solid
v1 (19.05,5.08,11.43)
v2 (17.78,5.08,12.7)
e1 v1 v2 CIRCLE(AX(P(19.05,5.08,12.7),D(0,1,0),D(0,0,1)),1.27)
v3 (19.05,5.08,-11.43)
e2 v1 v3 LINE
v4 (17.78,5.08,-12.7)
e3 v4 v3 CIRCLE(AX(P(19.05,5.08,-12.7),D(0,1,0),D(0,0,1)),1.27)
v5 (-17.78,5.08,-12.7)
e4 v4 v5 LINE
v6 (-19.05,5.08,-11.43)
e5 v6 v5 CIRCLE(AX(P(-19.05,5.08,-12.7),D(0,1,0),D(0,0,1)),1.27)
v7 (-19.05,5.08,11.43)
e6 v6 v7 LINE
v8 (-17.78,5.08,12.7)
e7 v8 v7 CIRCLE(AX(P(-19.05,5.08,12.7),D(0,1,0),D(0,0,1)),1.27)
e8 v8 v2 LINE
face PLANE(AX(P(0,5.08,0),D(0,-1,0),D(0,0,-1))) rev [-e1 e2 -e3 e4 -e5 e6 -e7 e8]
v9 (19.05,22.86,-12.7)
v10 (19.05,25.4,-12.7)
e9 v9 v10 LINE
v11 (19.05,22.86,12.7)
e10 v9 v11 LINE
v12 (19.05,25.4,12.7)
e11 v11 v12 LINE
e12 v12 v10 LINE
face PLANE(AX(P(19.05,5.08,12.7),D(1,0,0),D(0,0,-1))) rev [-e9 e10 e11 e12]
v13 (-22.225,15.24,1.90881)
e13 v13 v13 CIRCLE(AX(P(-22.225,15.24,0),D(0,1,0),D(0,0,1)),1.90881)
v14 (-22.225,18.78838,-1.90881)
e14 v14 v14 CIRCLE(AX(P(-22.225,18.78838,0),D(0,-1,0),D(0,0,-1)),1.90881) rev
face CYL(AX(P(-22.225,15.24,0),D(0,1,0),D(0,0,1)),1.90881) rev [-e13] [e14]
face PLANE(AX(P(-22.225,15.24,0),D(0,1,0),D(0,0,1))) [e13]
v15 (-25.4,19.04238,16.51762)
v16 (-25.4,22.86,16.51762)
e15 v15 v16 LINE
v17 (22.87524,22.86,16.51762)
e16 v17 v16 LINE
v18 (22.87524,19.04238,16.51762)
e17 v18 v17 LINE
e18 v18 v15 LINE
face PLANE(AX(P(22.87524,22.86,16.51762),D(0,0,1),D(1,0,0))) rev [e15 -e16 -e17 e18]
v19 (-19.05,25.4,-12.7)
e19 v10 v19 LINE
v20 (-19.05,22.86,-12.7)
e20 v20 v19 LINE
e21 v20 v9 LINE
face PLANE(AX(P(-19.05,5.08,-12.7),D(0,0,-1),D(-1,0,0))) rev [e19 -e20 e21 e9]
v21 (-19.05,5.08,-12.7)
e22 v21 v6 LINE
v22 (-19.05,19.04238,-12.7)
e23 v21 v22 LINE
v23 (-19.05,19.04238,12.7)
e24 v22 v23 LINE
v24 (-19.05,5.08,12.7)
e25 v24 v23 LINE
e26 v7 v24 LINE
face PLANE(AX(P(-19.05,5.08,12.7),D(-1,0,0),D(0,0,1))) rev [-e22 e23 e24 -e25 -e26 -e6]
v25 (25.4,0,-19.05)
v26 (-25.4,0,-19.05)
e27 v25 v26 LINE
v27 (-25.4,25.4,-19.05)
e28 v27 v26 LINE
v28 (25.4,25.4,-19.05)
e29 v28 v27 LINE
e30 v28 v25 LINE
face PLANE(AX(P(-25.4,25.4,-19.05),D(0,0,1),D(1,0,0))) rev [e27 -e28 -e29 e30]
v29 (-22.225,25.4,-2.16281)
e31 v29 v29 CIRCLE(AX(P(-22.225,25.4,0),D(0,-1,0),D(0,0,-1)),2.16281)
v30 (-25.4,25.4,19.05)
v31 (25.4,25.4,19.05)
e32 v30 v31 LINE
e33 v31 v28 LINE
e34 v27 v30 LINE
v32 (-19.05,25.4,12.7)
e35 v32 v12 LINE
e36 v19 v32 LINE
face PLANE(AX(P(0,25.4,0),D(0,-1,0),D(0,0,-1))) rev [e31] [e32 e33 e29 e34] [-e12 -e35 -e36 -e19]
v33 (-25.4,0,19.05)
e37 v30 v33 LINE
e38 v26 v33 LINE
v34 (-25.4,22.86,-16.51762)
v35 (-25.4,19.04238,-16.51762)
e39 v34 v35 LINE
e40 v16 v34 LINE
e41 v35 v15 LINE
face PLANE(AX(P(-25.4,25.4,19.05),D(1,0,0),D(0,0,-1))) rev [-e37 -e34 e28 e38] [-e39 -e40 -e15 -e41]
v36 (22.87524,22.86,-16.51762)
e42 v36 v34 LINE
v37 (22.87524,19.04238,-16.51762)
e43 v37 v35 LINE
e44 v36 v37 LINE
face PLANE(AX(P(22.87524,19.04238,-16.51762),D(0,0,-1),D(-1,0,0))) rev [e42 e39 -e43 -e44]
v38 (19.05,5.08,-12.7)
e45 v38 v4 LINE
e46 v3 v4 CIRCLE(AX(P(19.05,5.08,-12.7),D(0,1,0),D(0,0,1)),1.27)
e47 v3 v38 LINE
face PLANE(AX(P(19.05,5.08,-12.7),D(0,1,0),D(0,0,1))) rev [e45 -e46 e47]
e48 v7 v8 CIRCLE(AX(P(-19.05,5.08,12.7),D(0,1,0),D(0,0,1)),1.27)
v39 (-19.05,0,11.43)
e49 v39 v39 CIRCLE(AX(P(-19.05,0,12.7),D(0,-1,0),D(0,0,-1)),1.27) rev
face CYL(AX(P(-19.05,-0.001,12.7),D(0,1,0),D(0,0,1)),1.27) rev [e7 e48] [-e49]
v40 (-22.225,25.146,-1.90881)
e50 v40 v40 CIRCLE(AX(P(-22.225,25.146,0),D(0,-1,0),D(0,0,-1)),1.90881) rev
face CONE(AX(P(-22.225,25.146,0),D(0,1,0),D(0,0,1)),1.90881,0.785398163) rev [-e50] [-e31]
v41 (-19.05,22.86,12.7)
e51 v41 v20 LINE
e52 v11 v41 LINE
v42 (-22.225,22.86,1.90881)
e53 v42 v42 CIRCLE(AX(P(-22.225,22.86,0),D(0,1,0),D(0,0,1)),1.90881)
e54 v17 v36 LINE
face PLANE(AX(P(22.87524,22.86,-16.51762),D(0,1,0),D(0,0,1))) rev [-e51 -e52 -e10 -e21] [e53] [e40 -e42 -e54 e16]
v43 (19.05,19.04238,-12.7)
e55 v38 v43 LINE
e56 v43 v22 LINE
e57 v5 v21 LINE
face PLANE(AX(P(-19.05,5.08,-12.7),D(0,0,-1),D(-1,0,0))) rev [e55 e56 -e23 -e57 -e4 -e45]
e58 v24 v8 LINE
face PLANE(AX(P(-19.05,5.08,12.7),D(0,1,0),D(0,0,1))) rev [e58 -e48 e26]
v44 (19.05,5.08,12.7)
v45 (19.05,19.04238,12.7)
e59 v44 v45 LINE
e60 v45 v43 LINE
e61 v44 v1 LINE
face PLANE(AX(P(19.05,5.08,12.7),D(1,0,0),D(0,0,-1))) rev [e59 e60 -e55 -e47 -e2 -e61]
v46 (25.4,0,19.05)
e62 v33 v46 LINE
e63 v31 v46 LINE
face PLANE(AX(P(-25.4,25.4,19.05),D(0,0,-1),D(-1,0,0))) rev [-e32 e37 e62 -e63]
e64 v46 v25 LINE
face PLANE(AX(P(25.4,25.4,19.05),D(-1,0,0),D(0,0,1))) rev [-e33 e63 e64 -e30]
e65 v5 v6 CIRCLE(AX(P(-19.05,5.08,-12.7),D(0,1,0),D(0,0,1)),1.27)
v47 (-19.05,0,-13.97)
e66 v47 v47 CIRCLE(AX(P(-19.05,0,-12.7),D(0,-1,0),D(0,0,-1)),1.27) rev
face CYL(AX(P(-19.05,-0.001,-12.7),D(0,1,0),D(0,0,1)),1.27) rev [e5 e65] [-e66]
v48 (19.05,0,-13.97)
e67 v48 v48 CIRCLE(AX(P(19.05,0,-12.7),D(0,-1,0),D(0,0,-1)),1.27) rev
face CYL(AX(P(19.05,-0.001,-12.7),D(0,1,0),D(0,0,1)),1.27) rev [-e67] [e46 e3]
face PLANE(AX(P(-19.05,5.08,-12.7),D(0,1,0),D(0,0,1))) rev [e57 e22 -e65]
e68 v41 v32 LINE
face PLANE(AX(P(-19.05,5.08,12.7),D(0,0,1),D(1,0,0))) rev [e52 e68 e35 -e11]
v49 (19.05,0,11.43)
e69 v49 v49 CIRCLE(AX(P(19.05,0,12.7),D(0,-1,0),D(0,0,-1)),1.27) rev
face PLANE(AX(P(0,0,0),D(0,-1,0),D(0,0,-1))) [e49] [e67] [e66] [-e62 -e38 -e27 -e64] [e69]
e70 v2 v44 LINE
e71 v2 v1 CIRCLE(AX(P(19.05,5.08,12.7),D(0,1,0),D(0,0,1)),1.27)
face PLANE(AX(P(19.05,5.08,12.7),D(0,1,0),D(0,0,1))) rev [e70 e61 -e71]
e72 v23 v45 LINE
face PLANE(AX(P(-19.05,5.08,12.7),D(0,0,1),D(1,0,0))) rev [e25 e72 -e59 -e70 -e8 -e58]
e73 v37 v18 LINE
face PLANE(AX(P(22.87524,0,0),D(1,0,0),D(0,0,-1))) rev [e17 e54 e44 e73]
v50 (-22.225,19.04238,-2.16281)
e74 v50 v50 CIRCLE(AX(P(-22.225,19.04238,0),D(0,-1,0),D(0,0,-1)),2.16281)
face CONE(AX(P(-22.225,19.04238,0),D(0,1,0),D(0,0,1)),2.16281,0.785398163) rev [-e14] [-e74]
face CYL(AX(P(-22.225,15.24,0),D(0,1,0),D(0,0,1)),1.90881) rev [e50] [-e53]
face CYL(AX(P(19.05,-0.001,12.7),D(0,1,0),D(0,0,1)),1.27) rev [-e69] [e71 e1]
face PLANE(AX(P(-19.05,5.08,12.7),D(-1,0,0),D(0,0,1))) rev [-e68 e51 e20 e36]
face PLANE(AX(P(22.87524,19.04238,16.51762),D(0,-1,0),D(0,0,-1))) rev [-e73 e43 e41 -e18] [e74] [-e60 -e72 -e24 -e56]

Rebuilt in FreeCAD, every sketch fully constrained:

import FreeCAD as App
import Part
import Sketcher
Q = App.Units.Quantity


def edges_at(feature, points):
    """Names of the edges that pass closest to the given points."""
    edges = feature.Shape.Edges
    near = lambda p: min(range(len(edges)), key=lambda i: edges[i].distToShape(Part.Vertex(*p))[0])
    return sorted({f"Edge{near(p) + 1}" for p in points})

doc = App.newDocument("Part")
params = doc.addObject("Spreadsheet::Sheet", "Params")
for row, (alias, value) in enumerate([
    ("sketch1_width", "2 in"),
    ("sketch1_height", "1.5 in"),
    ("pad1_length", "1 in"),
    ("sketch2_height", "1 in"),
    ("sketch2_width", "1.5 in"),
    ("pocket1_length", "0.8 in"),
    ("pocket2_length", "1.9006 in"),
    ("pocket3_length", "0.4 in"),
    ("chamfer_size", "0.01 in"),
    ("chamfer2_size", "0.01 in"),
    ("sketch5_diameter", "0.1 in"),
    ("sketch6_diameter", "0.1 in"),
    ("sketch7_diameter", "0.1 in"),
    ("sketch8_diameter", "0.1 in"),
], start=1):
    params.set(f"A{row}", alias)
    params.set(f"B{row}", "=" + value)
    params.setAlias(f"B{row}", alias)

body = doc.addObject("PartDesign::Body", "Body")

sketch1 = doc.addObject("Sketcher::SketchObject", "Sketch")
body.addObject(sketch1)
sketch1.AttachmentSupport = (doc.XZ_Plane, [""])
sketch1.MapMode = "FlatFace"
sketch1.addGeometry([
    Part.LineSegment(App.Vector(-25, -19, 0), App.Vector(-25, 19, 0)),
    Part.LineSegment(App.Vector(-25, 19, 0), App.Vector(25, 19, 0)),
    Part.LineSegment(App.Vector(25, 19, 0), App.Vector(25, -19, 0)),
    Part.LineSegment(App.Vector(25, -19, 0), App.Vector(-25, -19, 0)),
], False)
sketch1.addConstraint([
    Sketcher.Constraint("Coincident", 0, 2, 1, 1),
    Sketcher.Constraint("Coincident", 1, 2, 2, 1),
    Sketcher.Constraint("Coincident", 2, 2, 3, 1),
    Sketcher.Constraint("Coincident", 3, 2, 0, 1),
    Sketcher.Constraint("Vertical", 0),
    Sketcher.Constraint("Horizontal", 1),
    Sketcher.Constraint("Vertical", 2),
    Sketcher.Constraint("Horizontal", 3),
    Sketcher.Constraint("Symmetric", 0, 2, 2, 2, -1, 1),
    Sketcher.Constraint("DistanceX", 1, 1, 1, 2, Q("2 in")),
    Sketcher.Constraint("DistanceY", 0, 1, 0, 2, Q("1.5 in")),
])
sketch1.setExpression("Constraints[9]", "Params.sketch1_width")
sketch1.setExpression("Constraints[10]", "Params.sketch1_height")
pad1 = doc.addObject("PartDesign::Pad", "Pad")
body.addObject(pad1)
pad1.Profile = sketch1
pad1.setExpression("Length", "Params.pad1_length")
pad1.Reversed = True

sketch2 = doc.addObject("Sketcher::SketchObject", "Sketch001")
body.addObject(sketch2)
sketch2.AttachmentSupport = (doc.XZ_Plane, [""])
sketch2.MapMode = "FlatFace"
sketch2.AttachmentOffset = App.Placement(App.Vector(0, 0, -1 * 25.4), App.Rotation())
sketch2.addGeometry([
    Part.LineSegment(App.Vector(-19, -13, 0), App.Vector(-19, 13, 0)),
    Part.LineSegment(App.Vector(-19, 13, 0), App.Vector(19, 13, 0)),
    Part.LineSegment(App.Vector(19, 13, 0), App.Vector(19, -13, 0)),
    Part.LineSegment(App.Vector(19, -13, 0), App.Vector(-19, -13, 0)),
], False)
sketch2.addConstraint([
    Sketcher.Constraint("Coincident", 0, 2, 1, 1),
    Sketcher.Constraint("Coincident", 1, 2, 2, 1),
    Sketcher.Constraint("Coincident", 2, 2, 3, 1),
    Sketcher.Constraint("Coincident", 3, 2, 0, 1),
    Sketcher.Constraint("Vertical", 0),
    Sketcher.Constraint("Horizontal", 1),
    Sketcher.Constraint("Vertical", 2),
    Sketcher.Constraint("Horizontal", 3),
    Sketcher.Constraint("Symmetric", 0, 2, 2, 2, -1, 1),
    Sketcher.Constraint("DistanceY", 0, 1, 0, 2, Q("1 in")),
    Sketcher.Constraint("DistanceX", 1, 1, 1, 2, Q("1.5 in")),
])
sketch2.setExpression("Constraints[9]", "Params.sketch2_height")
sketch2.setExpression("Constraints[10]", "Params.sketch2_width")
pocket1 = doc.addObject("PartDesign::Pocket", "Pocket")
body.addObject(pocket1)
pocket1.Profile = sketch2
pocket1.setExpression("Length", "Params.pocket1_length")
pocket1.Reversed = True

sketch3 = doc.addObject("Sketcher::SketchObject", "Sketch002")
body.addObject(sketch3)
sketch3.AttachmentSupport = (doc.YZ_Plane, [""])
sketch3.MapMode = "FlatFace"
sketch3.AttachmentOffset = App.Placement(App.Vector(0, 0, -1 * 25.4), App.Rotation())
sketch3.addGeometry([
    Part.LineSegment(App.Vector(22.9, -16.5, 0), App.Vector(19, -16.5, 0)),
    Part.LineSegment(App.Vector(19, -16.5, 0), App.Vector(19, 16.5, 0)),
    Part.LineSegment(App.Vector(19, 16.5, 0), App.Vector(22.9, 16.5, 0)),
    Part.LineSegment(App.Vector(22.9, 16.5, 0), App.Vector(22.9, -16.5, 0)),
], False)
sketch3.addConstraint([
    Sketcher.Constraint("Coincident", 0, 2, 1, 1),
    Sketcher.Constraint("Coincident", 1, 2, 2, 1),
    Sketcher.Constraint("Coincident", 2, 2, 3, 1),
    Sketcher.Constraint("Coincident", 3, 2, 0, 1),
    Sketcher.Constraint("Horizontal", 0),
    Sketcher.Constraint("Vertical", 1),
    Sketcher.Constraint("Horizontal", 2),
    Sketcher.Constraint("Vertical", 3),
    Sketcher.Constraint("DistanceX", -1, 1, 2, 2, Q("0.9 in")),
    Sketcher.Constraint("DistanceX", 0, 2, 0, 1, Q("0.1503 in")),
    Sketcher.Constraint("DistanceY", 1, 1, 1, 2, Q("1.3006 in")),
    Sketcher.Constraint("DistanceY", 0, 2, -1, 1, Q("0.6503 in")),
])
pocket2 = doc.addObject("PartDesign::Pocket", "Pocket001")
body.addObject(pocket2)
pocket2.Profile = sketch3
pocket2.setExpression("Length", "Params.pocket2_length")
pocket2.Reversed = True

sketch4 = doc.addObject("Sketcher::SketchObject", "Sketch003")
body.addObject(sketch4)
sketch4.AttachmentSupport = (doc.XZ_Plane, [""])
sketch4.MapMode = "FlatFace"
sketch4.AttachmentOffset = App.Placement(App.Vector(0, 0, -1 * 25.4), App.Rotation())
sketch4.addGeometry(Part.Circle(App.Vector(-22.2, 0, 0), App.Vector(0, 0, 1), 1.9), False)
sketch4.addConstraint([
    Sketcher.Constraint("PointOnObject", 0, 3, -1),
    Sketcher.Constraint("Diameter", 0, Q("0.1503 in")),
    Sketcher.Constraint("DistanceX", 0, 3, -1, 1, Q("0.875 in")),
])
pocket3 = doc.addObject("PartDesign::Pocket", "Pocket002")
body.addObject(pocket3)
pocket3.Profile = sketch4
pocket3.setExpression("Length", "Params.pocket3_length")
pocket3.Reversed = True
doc.recompute()

chamfer = doc.addObject("PartDesign::Chamfer", "Chamfer")
body.addObject(chamfer)
chamfer.Base = (pocket3, edges_at(pocket3, [(-22.225, 25.4, -1.909)]))
chamfer.setExpression("Size", "Params.chamfer_size")
doc.recompute()

chamfer2 = doc.addObject("PartDesign::Chamfer", "Chamfer001")
body.addObject(chamfer2)
chamfer2.Base = (chamfer, edges_at(chamfer, [(-22.225, 19.042, -1.909)]))
chamfer2.setExpression("Size", "Params.chamfer2_size")

sketch5 = doc.addObject("Sketcher::SketchObject", "Sketch004")
body.addObject(sketch5)
sketch5.AttachmentSupport = (doc.XZ_Plane, [""])
sketch5.MapMode = "FlatFace"
sketch5.AttachmentOffset = App.Placement(App.Vector(0, 0, -0.2 * 25.4), App.Rotation())
sketch5.addGeometry(Part.Circle(App.Vector(-19.1, -12.7, 0), App.Vector(0, 0, 1), 1.3), False)
sketch5.addConstraint([
    Sketcher.Constraint("Diameter", 0, Q("0.1 in")),
    Sketcher.Constraint("DistanceY", 0, 3, -1, 1, Q("0.5 in")),
    Sketcher.Constraint("DistanceX", 0, 3, -1, 1, Q("0.75 in")),
])
sketch5.setExpression("Constraints[0]", "Params.sketch5_diameter")
pocket4 = doc.addObject("PartDesign::Pocket", "Pocket003")
body.addObject(pocket4)
pocket4.Profile = sketch5
pocket4.Type = "UpToFirst"
pocket4.Reversed = True

sketch6 = doc.addObject("Sketcher::SketchObject", "Sketch005")
body.addObject(sketch6)
sketch6.AttachmentSupport = (doc.XZ_Plane, [""])
sketch6.MapMode = "FlatFace"
sketch6.AttachmentOffset = App.Placement(App.Vector(0, 0, -0.2 * 25.4), App.Rotation())
sketch6.addGeometry(Part.Circle(App.Vector(19.1, -12.7, 0), App.Vector(0, 0, 1), 1.3), False)
sketch6.addConstraint([
    Sketcher.Constraint("Diameter", 0, Q("0.1 in")),
    Sketcher.Constraint("DistanceY", 0, 3, -1, 1, Q("0.5 in")),
    Sketcher.Constraint("DistanceX", -1, 1, 0, 3, Q("0.75 in")),
])
sketch6.setExpression("Constraints[0]", "Params.sketch6_diameter")
pocket5 = doc.addObject("PartDesign::Pocket", "Pocket004")
body.addObject(pocket5)
pocket5.Profile = sketch6
pocket5.Type = "UpToFirst"
pocket5.Reversed = True

sketch7 = doc.addObject("Sketcher::SketchObject", "Sketch006")
body.addObject(sketch7)
sketch7.AttachmentSupport = (doc.XZ_Plane, [""])
sketch7.MapMode = "FlatFace"
sketch7.AttachmentOffset = App.Placement(App.Vector(0, 0, -0.2 * 25.4), App.Rotation())
sketch7.addGeometry(Part.Circle(App.Vector(-19.1, 12.7, 0), App.Vector(0, 0, 1), 1.3), False)
sketch7.addConstraint([
    Sketcher.Constraint("Diameter", 0, Q("0.1 in")),
    Sketcher.Constraint("DistanceY", -1, 1, 0, 3, Q("0.5 in")),
    Sketcher.Constraint("DistanceX", 0, 3, -1, 1, Q("0.75 in")),
])
sketch7.setExpression("Constraints[0]", "Params.sketch7_diameter")
pocket6 = doc.addObject("PartDesign::Pocket", "Pocket005")
body.addObject(pocket6)
pocket6.Profile = sketch7
pocket6.Type = "UpToFirst"
pocket6.Reversed = True

sketch8 = doc.addObject("Sketcher::SketchObject", "Sketch007")
body.addObject(sketch8)
sketch8.AttachmentSupport = (doc.XZ_Plane, [""])
sketch8.MapMode = "FlatFace"
sketch8.AttachmentOffset = App.Placement(App.Vector(0, 0, -0.2 * 25.4), App.Rotation())
sketch8.addGeometry(Part.Circle(App.Vector(19.1, 12.7, 0), App.Vector(0, 0, 1), 1.3), False)
sketch8.addConstraint([
    Sketcher.Constraint("Diameter", 0, Q("0.1 in")),
    Sketcher.Constraint("DistanceY", -1, 1, 0, 3, Q("0.5 in")),
    Sketcher.Constraint("DistanceX", -1, 1, 0, 3, Q("0.75 in")),
])
sketch8.setExpression("Constraints[0]", "Params.sketch8_diameter")
pocket7 = doc.addObject("PartDesign::Pocket", "Pocket006")
body.addObject(pocket7)
pocket7.Profile = sketch8
pocket7.Type = "UpToFirst"
pocket7.Reversed = True

doc.recompute()
